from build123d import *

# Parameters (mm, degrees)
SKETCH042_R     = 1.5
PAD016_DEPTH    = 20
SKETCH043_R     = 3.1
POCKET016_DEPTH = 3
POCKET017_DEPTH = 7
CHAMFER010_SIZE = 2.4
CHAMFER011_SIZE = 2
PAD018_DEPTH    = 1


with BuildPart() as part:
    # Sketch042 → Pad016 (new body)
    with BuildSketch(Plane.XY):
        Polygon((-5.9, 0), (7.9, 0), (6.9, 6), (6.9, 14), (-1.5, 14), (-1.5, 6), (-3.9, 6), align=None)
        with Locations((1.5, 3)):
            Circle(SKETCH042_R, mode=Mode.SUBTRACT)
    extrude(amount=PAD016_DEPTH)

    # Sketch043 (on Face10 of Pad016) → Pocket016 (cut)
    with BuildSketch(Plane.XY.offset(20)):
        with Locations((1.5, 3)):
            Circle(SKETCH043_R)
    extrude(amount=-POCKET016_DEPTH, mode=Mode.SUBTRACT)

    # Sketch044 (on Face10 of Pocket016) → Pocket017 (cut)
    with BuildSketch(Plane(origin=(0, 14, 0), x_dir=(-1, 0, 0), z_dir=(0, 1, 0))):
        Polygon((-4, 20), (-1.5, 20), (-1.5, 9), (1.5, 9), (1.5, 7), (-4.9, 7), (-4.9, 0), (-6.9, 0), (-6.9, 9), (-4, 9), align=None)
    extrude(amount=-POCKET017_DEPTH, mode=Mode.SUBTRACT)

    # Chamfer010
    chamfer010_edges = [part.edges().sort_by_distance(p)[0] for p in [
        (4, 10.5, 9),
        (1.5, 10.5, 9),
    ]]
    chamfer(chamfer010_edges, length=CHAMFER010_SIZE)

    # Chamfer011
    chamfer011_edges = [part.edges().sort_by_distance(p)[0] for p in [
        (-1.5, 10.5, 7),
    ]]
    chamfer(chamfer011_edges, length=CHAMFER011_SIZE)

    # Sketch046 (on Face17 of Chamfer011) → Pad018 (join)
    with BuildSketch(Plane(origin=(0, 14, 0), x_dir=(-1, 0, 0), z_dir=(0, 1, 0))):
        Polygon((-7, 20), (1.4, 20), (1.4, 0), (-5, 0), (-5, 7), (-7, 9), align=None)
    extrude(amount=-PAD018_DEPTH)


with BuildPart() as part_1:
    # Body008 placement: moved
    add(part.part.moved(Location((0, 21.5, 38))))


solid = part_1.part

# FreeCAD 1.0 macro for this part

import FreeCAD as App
import Part
import Sketcher
from FreeCAD import Vector
Q = App.Units.Quantity


def edges_at(feature, points):
    """Names of the edges that pass closest to the given points."""
    edges = feature.Shape.Edges
    near = lambda p: min(range(len(edges)), key=lambda i: edges[i].distToShape(Part.Vertex(*p))[0])
    return sorted({f"Edge{near(p) + 1}" for p in points})

doc = App.newDocument("Part")
body = doc.addObject("PartDesign::Body", "Body")

# Sketch on XY plane
sketch1 = body.newObject("Sketcher::SketchObject", "Sketch")
sketch1.AttachmentSupport = (doc.getObject("XY_Plane"), [""])
sketch1.MapMode = "FlatFace"
sketch1.addGeometry([
    Part.LineSegment(Vector(-5.9, 0, 0), Vector(7.9, 0, 0)),  # 0
    Part.LineSegment(Vector(7.9, 0, 0), Vector(6.9, 6, 0)),  # 1
    Part.LineSegment(Vector(6.9, 6, 0), Vector(6.9, 14, 0)),  # 2
    Part.LineSegment(Vector(6.9, 14, 0), Vector(-1.5, 14, 0)),  # 3
    Part.LineSegment(Vector(-1.5, 14, 0), Vector(-1.5, 6, 0)),  # 4
    Part.LineSegment(Vector(-1.5, 6, 0), Vector(-3.9, 6, 0)),  # 5
    Part.LineSegment(Vector(-3.9, 6, 0), Vector(-5.9, 0, 0)),  # 6
    Part.Circle(Vector(1.5, 3, 0), Vector(0, 0, 1), 1.5),  # 7
], False)
sketch1.addConstraint([
    Sketcher.Constraint("Coincident", 0, 2, 1, 1),
    Sketcher.Constraint("Coincident", 1, 2, 2, 1),
    Sketcher.Constraint("Coincident", 2, 2, 3, 1),
    Sketcher.Constraint("Coincident", 3, 2, 4, 1),
    Sketcher.Constraint("Coincident", 4, 2, 5, 1),
    Sketcher.Constraint("Coincident", 5, 2, 6, 1),
    Sketcher.Constraint("Coincident", 6, 2, 0, 1),
    Sketcher.Constraint("Horizontal", 0),
    Sketcher.Constraint("Vertical", 2),
    Sketcher.Constraint("Horizontal", 3),
    Sketcher.Constraint("Vertical", 4),
    Sketcher.Constraint("Horizontal", 5),
    Sketcher.Constraint("PointOnObject", 0, 2, -1),
    Sketcher.Constraint("Horizontal", 1, 2, 4, 2),
    Sketcher.Constraint("Diameter", 7, Q("3 mm")),
    Sketcher.Constraint("DistanceY", 2, 1, 2, 2, Q("8 mm")),
    Sketcher.Constraint("DistanceX", 0, 1, 0, 2, Q("13.8 mm")),
    Sketcher.Constraint("DistanceX", 3, 2, 3, 1, Q("8.4 mm")),
    Sketcher.Constraint("DistanceX", 5, 2, 5, 1, Q("2.4 mm")),
    Sketcher.Constraint("DistanceY", -1, 1, 7, 3, Q("3 mm")),
    Sketcher.Constraint("DistanceY", -1, 1, 1, 2, Q("6 mm")),
    Sketcher.Constraint("DistanceX", 1, 2, 0, 2, Q("1 mm")),
    Sketcher.Constraint("DistanceX", 3, 2, 7, 3, Q("3 mm")),
    Sketcher.Constraint("DistanceX", -1, 1, 7, 3, Q("1.5 mm")),
])
pad1 = body.newObject("PartDesign::Pad", "Pad")
pad1.Profile = sketch1
pad1.Length = 20

# Sketch on XY plane
sketch2 = body.newObject("Sketcher::SketchObject", "Sketch001")
sketch2.AttachmentSupport = (doc.getObject("XY_Plane"), [""])
sketch2.MapMode = "FlatFace"
sketch2.AttachmentOffset = App.Placement(Vector(0, 0, 20), App.Rotation())
sketch2.addGeometry(Part.Circle(Vector(1.5, 3, 0), Vector(0, 0, 1), 3.1), False)
sketch2.addConstraint([
    Sketcher.Constraint("Diameter", 0, Q("6.2 mm")),
    Sketcher.Constraint("DistanceY", -1, 1, 0, 3, Q("3 mm")),
    Sketcher.Constraint("DistanceX", -1, 1, 0, 3, Q("1.5 mm")),
])
pocket1 = body.newObject("PartDesign::Pocket", "Pocket")
pocket1.Profile = sketch2
pocket1.Length = 3

# Sketch on XZ plane
sketch3 = body.newObject("Sketcher::SketchObject", "Sketch002")
sketch3.AttachmentSupport = (doc.getObject("XZ_Plane"), [""])
sketch3.MapMode = "FlatFace"
sketch3.AttachmentOffset = App.Placement(Vector(0, 0, -14), App.Rotation())
sketch3.addGeometry([
    Part.LineSegment(Vector(1.5, 20, 0), Vector(4, 20, 0)),  # 0
    Part.LineSegment(Vector(4, 20, 0), Vector(4, 9, 0)),  # 1
    Part.LineSegment(Vector(4, 9, 0), Vector(6.9, 9, 0)),  # 2
    Part.LineSegment(Vector(6.9, 9, 0), Vector(6.9, 0, 0)),  # 3
    Part.LineSegment(Vector(6.9, 0, 0), Vector(4.9, 0, 0)),  # 4
    Part.LineSegment(Vector(4.9, 0, 0), Vector(4.9, 7, 0)),  # 5
    Part.LineSegment(Vector(4.9, 7, 0), Vector(-1.5, 7, 0)),  # 6
    Part.LineSegment(Vector(-1.5, 7, 0), Vector(-1.5, 9, 0)),  # 7
    Part.LineSegment(Vector(-1.5, 9, 0), Vector(1.5, 9, 0)),  # 8
    Part.LineSegment(Vector(1.5, 9, 0), Vector(1.5, 20, 0)),  # 9
], False)
sketch3.addConstraint([
    Sketcher.Constraint("Coincident", 0, 2, 1, 1),
    Sketcher.Constraint("Coincident", 1, 2, 2, 1),
    Sketcher.Constraint("Coincident", 2, 2, 3, 1),
    Sketcher.Constraint("Coincident", 3, 2, 4, 1),
    Sketcher.Constraint("Coincident", 4, 2, 5, 1),
    Sketcher.Constraint("Coincident", 5, 2, 6, 1),
    Sketcher.Constraint("Coincident", 6, 2, 7, 1),
    Sketcher.Constraint("Coincident", 7, 2, 8, 1),
    Sketcher.Constraint("Coincident", 8, 2, 9, 1),
    Sketcher.Constraint("Coincident", 9, 2, 0, 1),
    Sketcher.Constraint("Horizontal", 0),
    Sketcher.Constraint("Vertical", 1),
    Sketcher.Constraint("Horizontal", 2),
    Sketcher.Constraint("Vertical", 3),
    Sketcher.Constraint("Horizontal", 4),
    Sketcher.Constraint("Vertical", 5),
    Sketcher.Constraint("Horizontal", 6),
    Sketcher.Constraint("Vertical", 7),
    Sketcher.Constraint("Horizontal", 8),
    Sketcher.Constraint("Vertical", 9),
    Sketcher.Constraint("PointOnObject", 3, 2, -1),
    Sketcher.Constraint("Horizontal", 2, 2, 7, 2),
    Sketcher.Constraint("Equal", 4, 7),
    Sketcher.Constraint("DistanceX", 4, 2, 4, 1, Q("2 mm")),
    Sketcher.Constraint("DistanceX", 8, 1, 8, 2, Q("3 mm")),
    Sketcher.Constraint("DistanceY", 1, 2, 1, 1, Q("11 mm")),
    Sketcher.Constraint("DistanceY", 3, 2, 3, 1, Q("9 mm")),
    Sketcher.Constraint("DistanceX", 0, 1, 0, 2, Q("2.5 mm")),
    Sketcher.Constraint("DistanceX", 2, 1, 2, 2, Q("2.9 mm")),
    Sketcher.Constraint("DistanceX", -1, 1, 0, 2, Q("4 mm")),
])
pocket2 = body.newObject("PartDesign::Pocket", "Pocket001")
pocket2.Profile = sketch3
pocket2.Length = 7
pocket2.Reversed = True
doc.recompute()

chamfer = body.newObject("PartDesign::Chamfer", "Chamfer")
chamfer.Base = (pocket2, edges_at(pocket2, [(4, 10.5, 9), (1.5, 10.5, 9)]))
chamfer.Size = 2.4
doc.recompute()

chamfer2 = body.newObject("PartDesign::Chamfer", "Chamfer001")
chamfer2.Base = (chamfer, edges_at(chamfer, [(-1.5, 10.5, 7)]))
chamfer2.Size = 2

# Sketch on XZ plane
sketch4 = body.newObject("Sketcher::SketchObject", "Sketch003")
sketch4.AttachmentSupport = (doc.getObject("XZ_Plane"), [""])
sketch4.MapMode = "FlatFace"
sketch4.AttachmentOffset = App.Placement(Vector(0, 0, -14), App.Rotation())
sketch4.addGeometry([
    Part.LineSegment(Vector(-1.4, 20, 0), Vector(7, 20, 0)),  # 0
    Part.LineSegment(Vector(7, 20, 0), Vector(7, 9, 0)),  # 1
    Part.LineSegment(Vector(7, 9, 0), Vector(5, 7, 0)),  # 2
    Part.LineSegment(Vector(5, 7, 0), Vector(5, 0, 0)),  # 3
    Part.LineSegment(Vector(5, 0, 0), Vector(-1.4, 0, 0)),  # 4
    Part.LineSegment(Vector(-1.4, 0, 0), Vector(-1.4, 20, 0)),  # 5
], False)
sketch4.addConstraint([
    Sketcher.Constraint("Coincident", 0, 2, 1, 1),
    Sketcher.Constraint("Coincident", 1, 2, 2, 1),
    Sketcher.Constraint("Coincident", 2, 2, 3, 1),
    Sketcher.Constraint("Coincident", 3, 2, 4, 1),
    Sketcher.Constraint("Coincident", 4, 2, 5, 1),
    Sketcher.Constraint("Coincident", 5, 2, 0, 1),
    Sketcher.Constraint("Horizontal", 0),
    Sketcher.Constraint("Vertical", 1),
    Sketcher.Constraint("Vertical", 3),
    Sketcher.Constraint("Horizontal", 4),
    Sketcher.Constraint("Vertical", 5),
    Sketcher.Constraint("PointOnObject", 3, 2, -1),
    Sketcher.Constraint("DistanceY", 1, 2, 1, 1, Q("11 mm")),
    Sketcher.Constraint("DistanceY", 3, 2, 3, 1, Q("7 mm")),
    Sketcher.Constraint("DistanceY", 5, 1, 5, 2, Q("20 mm")),
    Sketcher.Constraint("Angle", 2, Q("-135 deg")),
    Sketcher.Constraint("DistanceX", 0, 1, 0, 2, Q("8.4 mm")),
    Sketcher.Constraint("DistanceX", -1, 1, 0, 2, Q("7 mm")),
])
pad2 = body.newObject("PartDesign::Pad", "Pad001")
pad2.Profile = sketch4
pad2.Length = 1
body2 = doc.addObject("PartDesign::Body", "Body001")
doc.recompute()

body.Placement = App.Placement(Vector(0, 21.5, 38), App.Rotation(Vector(0, 0, 1), 0))
boolean = body2.newObject("PartDesign::Boolean", "Boolean")
boolean.Type = "Fuse"
boolean.addObjects([body])

doc.recompute()
